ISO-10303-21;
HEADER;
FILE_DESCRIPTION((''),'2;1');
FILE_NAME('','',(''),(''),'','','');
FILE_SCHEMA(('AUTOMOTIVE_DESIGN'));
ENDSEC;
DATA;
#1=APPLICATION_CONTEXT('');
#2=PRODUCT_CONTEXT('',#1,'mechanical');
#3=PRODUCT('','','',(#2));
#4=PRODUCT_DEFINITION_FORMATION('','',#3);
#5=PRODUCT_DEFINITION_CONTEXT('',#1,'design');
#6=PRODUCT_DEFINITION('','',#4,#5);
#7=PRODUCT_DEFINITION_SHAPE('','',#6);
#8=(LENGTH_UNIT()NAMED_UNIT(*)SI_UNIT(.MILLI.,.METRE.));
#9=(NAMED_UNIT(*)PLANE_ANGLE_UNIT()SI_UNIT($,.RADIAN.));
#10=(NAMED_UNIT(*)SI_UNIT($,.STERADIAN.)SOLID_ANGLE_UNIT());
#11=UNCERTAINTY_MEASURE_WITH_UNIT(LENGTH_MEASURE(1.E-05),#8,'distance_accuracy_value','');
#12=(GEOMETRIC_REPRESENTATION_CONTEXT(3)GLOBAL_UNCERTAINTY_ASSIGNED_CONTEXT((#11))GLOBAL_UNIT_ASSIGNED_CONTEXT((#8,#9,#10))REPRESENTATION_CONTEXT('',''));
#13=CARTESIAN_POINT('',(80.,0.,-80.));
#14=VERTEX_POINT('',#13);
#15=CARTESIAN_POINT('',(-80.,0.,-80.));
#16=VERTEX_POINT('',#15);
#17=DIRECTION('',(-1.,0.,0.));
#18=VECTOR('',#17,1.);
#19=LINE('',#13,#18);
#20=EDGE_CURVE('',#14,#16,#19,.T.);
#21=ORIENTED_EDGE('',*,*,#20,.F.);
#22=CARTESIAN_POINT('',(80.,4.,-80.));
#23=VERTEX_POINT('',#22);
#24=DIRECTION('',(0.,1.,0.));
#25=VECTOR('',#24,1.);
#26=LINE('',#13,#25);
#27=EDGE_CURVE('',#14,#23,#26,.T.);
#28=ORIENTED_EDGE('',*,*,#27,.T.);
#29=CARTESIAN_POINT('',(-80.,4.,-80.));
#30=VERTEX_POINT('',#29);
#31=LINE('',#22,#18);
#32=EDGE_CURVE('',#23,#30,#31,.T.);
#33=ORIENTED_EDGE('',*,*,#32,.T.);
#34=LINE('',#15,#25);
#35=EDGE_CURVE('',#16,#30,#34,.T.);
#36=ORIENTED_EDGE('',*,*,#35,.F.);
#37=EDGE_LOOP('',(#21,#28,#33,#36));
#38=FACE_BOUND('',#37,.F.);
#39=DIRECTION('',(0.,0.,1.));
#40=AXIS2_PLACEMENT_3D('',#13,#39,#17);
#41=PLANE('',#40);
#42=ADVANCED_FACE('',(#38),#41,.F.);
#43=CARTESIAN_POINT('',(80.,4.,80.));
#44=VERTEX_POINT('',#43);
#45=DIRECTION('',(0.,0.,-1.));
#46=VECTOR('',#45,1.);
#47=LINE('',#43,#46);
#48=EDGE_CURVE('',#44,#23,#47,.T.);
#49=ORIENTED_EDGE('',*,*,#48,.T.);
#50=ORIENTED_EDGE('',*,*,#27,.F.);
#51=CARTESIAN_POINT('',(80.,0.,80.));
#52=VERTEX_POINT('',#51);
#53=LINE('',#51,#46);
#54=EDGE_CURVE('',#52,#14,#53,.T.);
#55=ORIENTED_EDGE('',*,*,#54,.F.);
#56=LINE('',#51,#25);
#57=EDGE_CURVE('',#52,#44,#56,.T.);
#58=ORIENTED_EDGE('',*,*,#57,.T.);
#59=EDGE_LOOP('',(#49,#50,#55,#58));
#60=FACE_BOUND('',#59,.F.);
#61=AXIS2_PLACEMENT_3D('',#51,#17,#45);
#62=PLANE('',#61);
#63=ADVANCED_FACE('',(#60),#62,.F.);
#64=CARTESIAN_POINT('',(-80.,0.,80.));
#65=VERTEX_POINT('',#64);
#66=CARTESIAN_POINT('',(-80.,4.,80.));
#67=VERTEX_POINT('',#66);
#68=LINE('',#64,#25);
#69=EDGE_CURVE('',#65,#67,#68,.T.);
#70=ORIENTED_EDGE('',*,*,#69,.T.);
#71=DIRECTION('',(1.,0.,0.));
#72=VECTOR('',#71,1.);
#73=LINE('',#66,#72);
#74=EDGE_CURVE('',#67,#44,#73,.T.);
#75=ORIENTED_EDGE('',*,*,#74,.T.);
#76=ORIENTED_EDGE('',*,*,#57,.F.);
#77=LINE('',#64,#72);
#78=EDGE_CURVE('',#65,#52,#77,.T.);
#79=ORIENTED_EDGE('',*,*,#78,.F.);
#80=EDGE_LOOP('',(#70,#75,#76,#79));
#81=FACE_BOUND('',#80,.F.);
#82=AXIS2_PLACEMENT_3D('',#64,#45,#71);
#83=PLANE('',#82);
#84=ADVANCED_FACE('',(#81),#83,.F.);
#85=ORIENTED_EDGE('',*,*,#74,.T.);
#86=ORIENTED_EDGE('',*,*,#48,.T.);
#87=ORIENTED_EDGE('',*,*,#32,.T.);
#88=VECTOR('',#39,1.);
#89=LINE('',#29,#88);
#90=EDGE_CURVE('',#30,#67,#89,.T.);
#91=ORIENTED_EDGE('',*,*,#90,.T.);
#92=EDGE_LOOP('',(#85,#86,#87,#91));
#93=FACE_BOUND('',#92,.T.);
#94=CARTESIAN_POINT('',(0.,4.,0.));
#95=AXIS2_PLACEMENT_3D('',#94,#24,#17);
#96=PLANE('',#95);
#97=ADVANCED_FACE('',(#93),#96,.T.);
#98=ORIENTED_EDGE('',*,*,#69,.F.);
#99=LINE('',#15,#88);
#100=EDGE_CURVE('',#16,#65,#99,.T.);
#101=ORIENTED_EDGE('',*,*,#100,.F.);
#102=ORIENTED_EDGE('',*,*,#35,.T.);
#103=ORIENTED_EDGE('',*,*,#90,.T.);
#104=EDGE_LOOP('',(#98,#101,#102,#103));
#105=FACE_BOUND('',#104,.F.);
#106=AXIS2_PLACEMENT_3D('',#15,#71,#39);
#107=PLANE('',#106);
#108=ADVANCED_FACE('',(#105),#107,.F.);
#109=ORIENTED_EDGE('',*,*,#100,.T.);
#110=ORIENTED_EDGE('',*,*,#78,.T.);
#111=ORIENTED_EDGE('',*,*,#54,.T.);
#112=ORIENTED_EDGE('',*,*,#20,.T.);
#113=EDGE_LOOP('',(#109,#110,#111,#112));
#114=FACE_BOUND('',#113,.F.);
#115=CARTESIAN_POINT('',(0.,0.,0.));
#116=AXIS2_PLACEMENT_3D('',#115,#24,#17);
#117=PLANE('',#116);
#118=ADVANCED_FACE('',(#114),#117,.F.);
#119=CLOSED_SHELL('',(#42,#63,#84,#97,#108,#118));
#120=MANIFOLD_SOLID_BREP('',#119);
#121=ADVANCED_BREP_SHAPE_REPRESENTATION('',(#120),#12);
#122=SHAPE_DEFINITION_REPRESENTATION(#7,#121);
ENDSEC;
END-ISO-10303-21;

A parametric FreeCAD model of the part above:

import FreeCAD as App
import Part
import Sketcher

V = App.Vector


def add_polygon(sketch, points):
    """Adds a closed chain of lines whose ends are joined by coincident constraints."""
    first, n = sketch.GeometryCount, len(points)
    for a, b in zip(points, points[1:] + points[:1]):
        sketch.addGeometry(Part.LineSegment(App.Vector(*a, 0), App.Vector(*b, 0)), False)
    for i in range(n):
        sketch.addConstraint(Sketcher.Constraint("Coincident", first + i, 2, first + (i + 1) % n, 1))

doc = App.newDocument("Part")
params = doc.addObject("Spreadsheet::Sheet", "Params")
for row, (alias, value) in enumerate([
    ("sketch1_width", "160 mm"),
    ("pad1_length", "4 mm"),
], start=1):
    params.set(f"A{row}", alias)
    params.set(f"B{row}", "=" + value)
    params.setAlias(f"B{row}", alias)

body = doc.addObject("PartDesign::Body", "Body")

# Sketch on XZ plane
sketch1 = doc.addObject("Sketcher::SketchObject", "Sketch")
body.addObject(sketch1)
sketch1.AttachmentSupport = (doc.XZ_Plane, [""])
sketch1.MapMode = "FlatFace"
add_polygon(sketch1, [(-80, -80), (-80, 80), (80, 80), (80, -80)])  # lines 0-3
sketch1.addConstraint(Sketcher.Constraint("Vertical", 0))
sketch1.addConstraint(Sketcher.Constraint("Horizontal", 1))
sketch1.addConstraint(Sketcher.Constraint("Vertical", 2))
sketch1.addConstraint(Sketcher.Constraint("Horizontal", 3))
sketch1.addConstraint(Sketcher.Constraint("Symmetric", 0, 2, 2, 2, -1, 1))
sketch1.addConstraint(Sketcher.Constraint("Equal", 3, 0))
sketch1.addConstraint(Sketcher.Constraint("DistanceX", 1, 1, 1, 2, 160.0))
sketch1.setExpression("Constraints[10]", "Params.sketch1_width")
pad1 = doc.addObject("PartDesign::Pad", "Pad")
body.addObject(pad1)
pad1.Profile = sketch1
pad1.setExpression("Length", "Params.pad1_length")
pad1.Reversed = True

doc.recompute()
